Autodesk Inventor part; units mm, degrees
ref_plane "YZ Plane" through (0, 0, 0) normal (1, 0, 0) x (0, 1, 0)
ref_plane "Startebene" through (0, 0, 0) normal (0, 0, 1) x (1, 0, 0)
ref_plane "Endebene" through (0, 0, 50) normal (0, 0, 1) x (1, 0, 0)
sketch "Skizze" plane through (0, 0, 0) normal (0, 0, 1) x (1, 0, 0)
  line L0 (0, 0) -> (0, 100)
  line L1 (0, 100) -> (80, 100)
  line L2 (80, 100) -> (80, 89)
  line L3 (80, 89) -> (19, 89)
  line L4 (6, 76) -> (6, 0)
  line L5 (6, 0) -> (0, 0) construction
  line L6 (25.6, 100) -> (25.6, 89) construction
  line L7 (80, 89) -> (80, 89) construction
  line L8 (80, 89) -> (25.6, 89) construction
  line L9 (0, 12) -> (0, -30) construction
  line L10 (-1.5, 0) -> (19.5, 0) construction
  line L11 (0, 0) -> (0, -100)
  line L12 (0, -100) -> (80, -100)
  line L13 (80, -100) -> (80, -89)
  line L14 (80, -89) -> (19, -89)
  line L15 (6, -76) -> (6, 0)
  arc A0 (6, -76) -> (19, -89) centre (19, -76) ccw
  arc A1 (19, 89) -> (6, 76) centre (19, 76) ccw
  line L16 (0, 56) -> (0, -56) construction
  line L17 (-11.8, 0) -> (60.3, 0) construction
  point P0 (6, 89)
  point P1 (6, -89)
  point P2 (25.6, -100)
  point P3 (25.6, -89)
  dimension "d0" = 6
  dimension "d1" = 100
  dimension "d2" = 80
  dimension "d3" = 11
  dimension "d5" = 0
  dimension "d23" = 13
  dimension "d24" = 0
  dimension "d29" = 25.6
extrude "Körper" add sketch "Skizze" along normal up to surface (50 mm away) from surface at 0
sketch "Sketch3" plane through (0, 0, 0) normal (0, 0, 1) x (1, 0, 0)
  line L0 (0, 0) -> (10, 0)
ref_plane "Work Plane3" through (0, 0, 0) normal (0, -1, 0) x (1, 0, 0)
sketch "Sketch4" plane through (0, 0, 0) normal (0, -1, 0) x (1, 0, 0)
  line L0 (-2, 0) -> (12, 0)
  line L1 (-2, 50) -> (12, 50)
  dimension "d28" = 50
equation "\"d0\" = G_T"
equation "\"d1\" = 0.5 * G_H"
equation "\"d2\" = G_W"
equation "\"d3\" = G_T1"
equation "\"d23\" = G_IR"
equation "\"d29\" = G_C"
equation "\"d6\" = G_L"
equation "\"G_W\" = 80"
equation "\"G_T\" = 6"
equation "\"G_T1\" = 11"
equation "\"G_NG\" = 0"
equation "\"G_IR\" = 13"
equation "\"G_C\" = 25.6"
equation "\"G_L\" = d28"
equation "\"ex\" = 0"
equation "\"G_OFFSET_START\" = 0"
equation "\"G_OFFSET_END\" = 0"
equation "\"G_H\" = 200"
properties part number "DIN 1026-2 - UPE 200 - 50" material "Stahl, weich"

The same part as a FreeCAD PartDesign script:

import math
import FreeCAD as App
import Part
import Sketcher

V = App.Vector

doc = App.newDocument("Part")
body = doc.addObject("PartDesign::Body", "Body")

sketch1 = body.newObject("Sketcher::SketchObject", "Sketch")
sketch1.AttachmentSupport = (doc.getObject("XY_Plane"), [""])
sketch1.MapMode = "FlatFace"
sketch1.addGeometry([
    Part.LineSegment(V(0, 100, 0), V(0, -100, 0)),
    Part.LineSegment(V(0, -100, 0), V(80, -100, 0)),
    Part.LineSegment(V(80, -100, 0), V(80, -89, 0)),
    Part.LineSegment(V(80, -89, 0), V(19, -89, 0)),
    Part.ArcOfCircle(Part.Circle(V(19, -76, 0), V(0, 0, 1), 13), math.radians(180), math.radians(270)),
    Part.LineSegment(V(6, -76, 0), V(6, 76, 0)),
    Part.ArcOfCircle(Part.Circle(V(19, 76, 0), V(0, 0, 1), 13), math.radians(90), math.radians(180)),
    Part.LineSegment(V(19, 89, 0), V(80, 89, 0)),
    Part.LineSegment(V(80, 89, 0), V(80, 100, 0)),
    Part.LineSegment(V(80, 100, 0), V(0, 100, 0)),
], False)
sketch1.addConstraint([
    Sketcher.Constraint("Coincident", 0, 2, 1, 1),
    Sketcher.Constraint("Coincident", 1, 2, 2, 1),
    Sketcher.Constraint("Coincident", 2, 2, 3, 1),
    Sketcher.Constraint("Tangent", 3, 2, 4, 2),
    Sketcher.Constraint("Tangent", 4, 1, 5, 1),
    Sketcher.Constraint("Tangent", 5, 2, 6, 2),
    Sketcher.Constraint("Tangent", 6, 1, 7, 1),
    Sketcher.Constraint("Coincident", 7, 2, 8, 1),
    Sketcher.Constraint("Coincident", 8, 2, 9, 1),
    Sketcher.Constraint("Coincident", 9, 2, 0, 1),
    Sketcher.Constraint("Vertical", 0),
    Sketcher.Constraint("Horizontal", 1),
    Sketcher.Constraint("Vertical", 2),
    Sketcher.Constraint("Horizontal", 3),
    Sketcher.Constraint("Vertical", 5),
    Sketcher.Constraint("Horizontal", 7),
    Sketcher.Constraint("Vertical", 8),
    Sketcher.Constraint("Horizontal", 9),
    Sketcher.Constraint("Equal", 4, 6),
    Sketcher.Constraint("Symmetric", 0, 2, 9, 2, -1, 1),
    Sketcher.Constraint("Symmetric", 2, 2, 7, 2, -1),
    Sketcher.Constraint("Radius", 4, 13.0),
    Sketcher.Constraint("DistanceX", 1, 1, 1, 2, 80.0),
    Sketcher.Constraint("DistanceY", 2, 1, 2, 2, 11.0),
    Sketcher.Constraint("DistanceY", 0, 2, -1, 1, 100.0),
    Sketcher.Constraint("DistanceX", -1, 1, 4, 1, 6.0),
])
pad1 = body.newObject("PartDesign::Pad", "Pad")
pad1.Profile = sketch1
pad1.Length = 50

doc.recompute()
